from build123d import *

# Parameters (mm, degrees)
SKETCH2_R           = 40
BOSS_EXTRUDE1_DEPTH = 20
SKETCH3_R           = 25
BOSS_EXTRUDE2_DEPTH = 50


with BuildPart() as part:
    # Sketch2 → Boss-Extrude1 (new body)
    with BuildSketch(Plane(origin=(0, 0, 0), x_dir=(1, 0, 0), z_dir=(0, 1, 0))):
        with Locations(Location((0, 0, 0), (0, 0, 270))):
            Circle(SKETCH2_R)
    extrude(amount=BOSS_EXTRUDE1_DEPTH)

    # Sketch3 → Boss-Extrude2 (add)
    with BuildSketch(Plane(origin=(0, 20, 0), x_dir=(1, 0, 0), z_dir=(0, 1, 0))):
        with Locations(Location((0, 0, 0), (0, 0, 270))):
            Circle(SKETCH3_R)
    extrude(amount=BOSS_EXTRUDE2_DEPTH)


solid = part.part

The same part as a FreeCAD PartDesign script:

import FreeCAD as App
import Part
import Sketcher

doc = App.newDocument("Part")
params = doc.addObject("Spreadsheet::Sheet", "Params")
for row, (alias, value) in enumerate([
    ("sketch1_diameter", "80 mm"),
    ("pad1_length", "20 mm"),
    ("sketch2_diameter", "50 mm"),
    ("pad2_length", "50 mm"),
], start=1):
    params.set(f"A{row}", alias)
    params.set(f"B{row}", "=" + value)
    params.setAlias(f"B{row}", alias)

body = doc.addObject("PartDesign::Body", "Body")

sketch1 = body.newObject("Sketcher::SketchObject", "Sketch")
sketch1.AttachmentSupport = (doc.getObject("XZ_Plane"), [""])
sketch1.MapMode = "FlatFace"
sketch1.addGeometry(Part.Circle(App.Vector(0, 0, 0), App.Vector(0, 0, 1), 40), False)
sketch1.addConstraint([
    Sketcher.Constraint("Coincident", 0, 3, -1, 1),
    Sketcher.Constraint("Diameter", 0, 80.0),
])
sketch1.setExpression("Constraints[1]", "Params.sketch1_diameter")
pad1 = body.newObject("PartDesign::Pad", "Pad")
pad1.Profile = sketch1
pad1.setExpression("Length", "Params.pad1_length")
pad1.Reversed = True

sketch2 = body.newObject("Sketcher::SketchObject", "Sketch001")
sketch2.AttachmentSupport = (doc.getObject("XZ_Plane"), [""])
sketch2.MapMode = "FlatFace"
sketch2.AttachmentOffset = App.Placement(App.Vector(0, 0, -20), App.Rotation())
sketch2.addGeometry(Part.Circle(App.Vector(0, 0, 0), App.Vector(0, 0, 1), 25), False)
sketch2.addConstraint([
    Sketcher.Constraint("Coincident", 0, 3, -1, 1),
    Sketcher.Constraint("Diameter", 0, 50.0),
])
sketch2.setExpression("Constraints[1]", "Params.sketch2_diameter")
pad2 = body.newObject("PartDesign::Pad", "Pad001")
pad2.Profile = sketch2
pad2.setExpression("Length", "Params.pad2_length")
pad2.Reversed = True

doc.recompute()
